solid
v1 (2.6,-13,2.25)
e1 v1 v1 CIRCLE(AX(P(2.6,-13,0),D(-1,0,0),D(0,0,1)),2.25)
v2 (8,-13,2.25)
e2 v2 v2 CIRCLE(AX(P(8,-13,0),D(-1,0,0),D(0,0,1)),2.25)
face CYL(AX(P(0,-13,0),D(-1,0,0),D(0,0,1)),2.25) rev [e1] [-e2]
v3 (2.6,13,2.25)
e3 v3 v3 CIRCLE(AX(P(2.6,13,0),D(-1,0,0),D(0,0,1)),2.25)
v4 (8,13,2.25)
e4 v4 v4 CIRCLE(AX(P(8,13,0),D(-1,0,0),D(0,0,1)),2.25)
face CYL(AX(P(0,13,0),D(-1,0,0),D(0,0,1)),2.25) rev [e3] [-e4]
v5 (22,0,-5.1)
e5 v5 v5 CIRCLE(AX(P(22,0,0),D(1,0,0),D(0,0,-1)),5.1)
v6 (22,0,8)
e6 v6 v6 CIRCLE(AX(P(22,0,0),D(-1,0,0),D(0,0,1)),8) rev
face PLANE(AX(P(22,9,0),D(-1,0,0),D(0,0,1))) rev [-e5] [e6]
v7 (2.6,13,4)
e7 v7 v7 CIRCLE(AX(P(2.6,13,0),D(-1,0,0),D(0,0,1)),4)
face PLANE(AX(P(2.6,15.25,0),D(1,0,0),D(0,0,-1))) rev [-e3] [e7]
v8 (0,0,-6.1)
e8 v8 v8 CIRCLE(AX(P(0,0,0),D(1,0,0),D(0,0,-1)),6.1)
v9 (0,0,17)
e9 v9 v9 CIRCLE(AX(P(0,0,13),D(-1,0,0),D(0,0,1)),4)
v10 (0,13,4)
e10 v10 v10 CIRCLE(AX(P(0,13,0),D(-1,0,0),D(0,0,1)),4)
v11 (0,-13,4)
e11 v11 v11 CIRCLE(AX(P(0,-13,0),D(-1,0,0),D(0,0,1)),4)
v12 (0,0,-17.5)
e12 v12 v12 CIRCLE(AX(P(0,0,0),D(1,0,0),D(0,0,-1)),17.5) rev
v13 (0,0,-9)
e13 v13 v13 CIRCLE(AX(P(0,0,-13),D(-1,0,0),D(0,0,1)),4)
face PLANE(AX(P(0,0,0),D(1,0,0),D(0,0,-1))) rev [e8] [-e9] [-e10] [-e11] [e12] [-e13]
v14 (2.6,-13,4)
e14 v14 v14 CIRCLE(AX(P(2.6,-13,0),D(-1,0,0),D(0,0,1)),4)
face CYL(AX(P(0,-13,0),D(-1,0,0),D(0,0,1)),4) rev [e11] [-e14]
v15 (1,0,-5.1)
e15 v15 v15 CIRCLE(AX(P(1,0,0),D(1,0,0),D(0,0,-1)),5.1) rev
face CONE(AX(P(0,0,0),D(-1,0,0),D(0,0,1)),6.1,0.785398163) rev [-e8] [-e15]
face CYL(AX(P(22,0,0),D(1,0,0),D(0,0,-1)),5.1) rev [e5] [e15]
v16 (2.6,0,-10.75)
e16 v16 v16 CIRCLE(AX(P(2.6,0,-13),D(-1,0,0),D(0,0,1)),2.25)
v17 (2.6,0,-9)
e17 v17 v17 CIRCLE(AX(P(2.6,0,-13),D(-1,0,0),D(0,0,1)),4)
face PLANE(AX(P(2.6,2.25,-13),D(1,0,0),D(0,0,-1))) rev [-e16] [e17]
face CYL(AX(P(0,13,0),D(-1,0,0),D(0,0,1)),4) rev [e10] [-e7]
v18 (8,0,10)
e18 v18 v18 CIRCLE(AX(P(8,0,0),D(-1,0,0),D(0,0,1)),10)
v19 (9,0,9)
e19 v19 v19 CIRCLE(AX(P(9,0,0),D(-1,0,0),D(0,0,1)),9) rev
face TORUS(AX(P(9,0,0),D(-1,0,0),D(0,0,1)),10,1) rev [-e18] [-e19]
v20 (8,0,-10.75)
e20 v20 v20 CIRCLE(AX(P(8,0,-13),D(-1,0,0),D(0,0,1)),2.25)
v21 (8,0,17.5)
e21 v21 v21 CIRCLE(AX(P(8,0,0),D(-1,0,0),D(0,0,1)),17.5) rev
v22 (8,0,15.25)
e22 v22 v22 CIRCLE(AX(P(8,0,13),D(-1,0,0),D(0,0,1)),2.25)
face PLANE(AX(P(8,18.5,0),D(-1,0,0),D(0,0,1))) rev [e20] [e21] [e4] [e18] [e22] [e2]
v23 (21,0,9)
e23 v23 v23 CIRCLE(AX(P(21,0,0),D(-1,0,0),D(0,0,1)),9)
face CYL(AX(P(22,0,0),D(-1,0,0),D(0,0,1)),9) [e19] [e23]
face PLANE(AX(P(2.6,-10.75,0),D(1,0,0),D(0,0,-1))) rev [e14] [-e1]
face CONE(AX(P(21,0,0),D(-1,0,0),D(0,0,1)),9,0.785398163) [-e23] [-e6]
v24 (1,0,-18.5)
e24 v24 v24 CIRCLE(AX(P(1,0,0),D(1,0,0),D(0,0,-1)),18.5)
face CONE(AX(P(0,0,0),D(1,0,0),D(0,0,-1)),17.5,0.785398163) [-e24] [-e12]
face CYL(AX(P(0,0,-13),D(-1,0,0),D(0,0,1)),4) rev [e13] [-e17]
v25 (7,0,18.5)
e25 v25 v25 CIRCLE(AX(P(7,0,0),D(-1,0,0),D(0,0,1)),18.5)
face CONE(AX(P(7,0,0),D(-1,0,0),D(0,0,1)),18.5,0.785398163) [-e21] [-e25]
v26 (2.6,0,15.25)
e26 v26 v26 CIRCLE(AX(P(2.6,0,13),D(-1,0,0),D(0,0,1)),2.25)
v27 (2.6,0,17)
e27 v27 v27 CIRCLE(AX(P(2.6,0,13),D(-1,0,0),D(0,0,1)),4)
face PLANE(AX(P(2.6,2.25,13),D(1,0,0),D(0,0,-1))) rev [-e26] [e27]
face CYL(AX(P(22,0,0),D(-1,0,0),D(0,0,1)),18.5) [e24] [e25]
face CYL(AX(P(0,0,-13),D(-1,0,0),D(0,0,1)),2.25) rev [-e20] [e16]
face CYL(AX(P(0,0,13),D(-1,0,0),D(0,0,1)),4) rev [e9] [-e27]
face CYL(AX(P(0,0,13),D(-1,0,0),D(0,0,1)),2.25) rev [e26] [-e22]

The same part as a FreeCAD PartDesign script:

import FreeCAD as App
import Part
import Sketcher
Q = App.Units.Quantity


def edges_at(feature, points):
    """Names of the edges that pass closest to the given points."""
    edges = feature.Shape.Edges
    near = lambda p: min(range(len(edges)), key=lambda i: edges[i].distToShape(Part.Vertex(*p))[0])
    return sorted({f"Edge{near(p) + 1}" for p in points})

doc = App.newDocument("Part")
body = doc.addObject("PartDesign::Body", "Body")

sketch1 = doc.addObject("Sketcher::SketchObject", "Sketch")
body.addObject(sketch1)
sketch1.AttachmentSupport = (doc.XY_Plane, [""])
sketch1.MapMode = "FlatFace"
sketch1.addGeometry(Part.LineSegment(App.Vector(0, 18, 0), App.Vector(0, 0, 0)), False)
sketch1.addGeometry(Part.LineSegment(App.Vector(0, 0, 0), App.Vector(22, 0, 0)), False)
sketch1.addGeometry(Part.LineSegment(App.Vector(22, 0, 0), App.Vector(22, 9, 0)), False)
sketch1.addGeometry(Part.LineSegment(App.Vector(22, 9, 0), App.Vector(8, 9, 0)), False)
sketch1.addGeometry(Part.LineSegment(App.Vector(8, 9, 0), App.Vector(8, 18, 0)), False)
sketch1.addGeometry(Part.LineSegment(App.Vector(8, 18, 0), App.Vector(0, 18, 0)), False)
sketch1.addConstraint(Sketcher.Constraint("Coincident", 0, 2, 1, 1))
sketch1.addConstraint(Sketcher.Constraint("Coincident", 1, 2, 2, 1))
sketch1.addConstraint(Sketcher.Constraint("Coincident", 2, 2, 3, 1))
sketch1.addConstraint(Sketcher.Constraint("Coincident", 3, 2, 4, 1))
sketch1.addConstraint(Sketcher.Constraint("Coincident", 4, 2, 5, 1))
sketch1.addConstraint(Sketcher.Constraint("Coincident", 5, 2, 0, 1))
sketch1.addConstraint(Sketcher.Constraint("Vertical", 0))
sketch1.addConstraint(Sketcher.Constraint("Horizontal", 1))
sketch1.addConstraint(Sketcher.Constraint("Vertical", 2))
sketch1.addConstraint(Sketcher.Constraint("Horizontal", 3))
sketch1.addConstraint(Sketcher.Constraint("Vertical", 4))
sketch1.addConstraint(Sketcher.Constraint("Horizontal", 5))
sketch1.addConstraint(Sketcher.Constraint("Coincident", 0, 2, -1, 1))
sketch1.addConstraint(Sketcher.Constraint("DistanceX", 1, 1, 1, 2, Q("22 mm")))
sketch1.addConstraint(Sketcher.Constraint("DistanceX", 3, 2, 3, 1, Q("14 mm")))
sketch1.addConstraint(Sketcher.Constraint("DistanceY", 2, 1, 2, 2, Q("9 mm")))
sketch1.addConstraint(Sketcher.Constraint("DistanceY", 0, 2, 0, 1, Q("18.5 mm")))
revolution = doc.addObject("PartDesign::Revolution", "Revolution")
body.addObject(revolution)
revolution.Profile = sketch1
revolution.ReferenceAxis = (sketch1, ["H_Axis"])
revolution.Angle = 360

sketch2 = doc.addObject("Sketcher::SketchObject", "Sketch001")
body.addObject(sketch2)
sketch2.AttachmentSupport = (doc.YZ_Plane, [""])
sketch2.MapMode = "FlatFace"
sketch2.addGeometry(Part.Circle(App.Vector(13, 0, 0), App.Vector(0, 0, 1), 2.2), False)
sketch2.addConstraint(Sketcher.Constraint("PointOnObject", 0, 3, -1))
sketch2.addConstraint(Sketcher.Constraint("Diameter", 0, Q("4.5 mm")))
sketch2.addConstraint(Sketcher.Constraint("DistanceX", -1, 1, 0, 3, Q("13 mm")))
doc.recompute()
hole = doc.addObject("PartDesign::Hole", "Hole")
body.addObject(hole)
hole.Profile = sketch2
hole.ThreadType = "None"
hole.Diameter = 4.5
hole.DepthType = "ThroughAll"
hole.HoleCutType = "Counterbore"
hole.HoleCutDiameter = 8
hole.HoleCutDepth = 2.6
hole.Reversed = True
doc.recompute()

polarpattern = doc.addObject("PartDesign::PolarPattern", "PolarPattern")
body.addObject(polarpattern)
polarpattern.Originals = [hole]
polarpattern.Axis = (doc.X_Axis, [""])
polarpattern.Angle = 360
polarpattern.Occurrences = 4
body.Tip = polarpattern
doc.recompute()

fillet = doc.addObject("PartDesign::Fillet", "Fillet")
body.addObject(fillet)
fillet.Base = (polarpattern, edges_at(polarpattern, [(8, -9, 0)]))
fillet.Radius = 1
doc.recompute()

chamfer = doc.addObject("PartDesign::Chamfer", "Chamfer")
body.addObject(chamfer)
chamfer.Base = (fillet, edges_at(fillet, [(22, -9, 0), (8, -18.5, 0), (0, -18.5, 0)]))
chamfer.Size = 1

sketch3 = doc.addObject("Sketcher::SketchObject", "Sketch002")
body.addObject(sketch3)
sketch3.AttachmentSupport = (doc.YZ_Plane, [""])
sketch3.MapMode = "FlatFace"
sketch3.AttachmentOffset = App.Placement(App.Vector(0, 0, 22), App.Rotation())
sketch3.addGeometry(Part.Circle(App.Vector(0, 0, 0), App.Vector(0, 0, 1), 5), False)
sketch3.addConstraint(Sketcher.Constraint("Coincident", 0, 3, -1, 1))
sketch3.addConstraint(Sketcher.Constraint("Diameter", 0, Q("10.2 mm")))
doc.recompute()
hole2 = doc.addObject("PartDesign::Hole", "Hole001")
body.addObject(hole2)
hole2.Profile = sketch3
hole2.ThreadType = "None"
hole2.Diameter = 10.2
hole2.DepthType = "Dimension"
hole2.Depth = 32.75
hole2.DrillPoint = "Angled"
hole2.DrillPointAngle = 118
doc.recompute()

chamfer2 = doc.addObject("PartDesign::Chamfer", "Chamfer001")
body.addObject(chamfer2)
chamfer2.Base = (hole2, edges_at(hole2, [(0, 0, -5.1)]))
chamfer2.Size = 1

doc.recompute()
